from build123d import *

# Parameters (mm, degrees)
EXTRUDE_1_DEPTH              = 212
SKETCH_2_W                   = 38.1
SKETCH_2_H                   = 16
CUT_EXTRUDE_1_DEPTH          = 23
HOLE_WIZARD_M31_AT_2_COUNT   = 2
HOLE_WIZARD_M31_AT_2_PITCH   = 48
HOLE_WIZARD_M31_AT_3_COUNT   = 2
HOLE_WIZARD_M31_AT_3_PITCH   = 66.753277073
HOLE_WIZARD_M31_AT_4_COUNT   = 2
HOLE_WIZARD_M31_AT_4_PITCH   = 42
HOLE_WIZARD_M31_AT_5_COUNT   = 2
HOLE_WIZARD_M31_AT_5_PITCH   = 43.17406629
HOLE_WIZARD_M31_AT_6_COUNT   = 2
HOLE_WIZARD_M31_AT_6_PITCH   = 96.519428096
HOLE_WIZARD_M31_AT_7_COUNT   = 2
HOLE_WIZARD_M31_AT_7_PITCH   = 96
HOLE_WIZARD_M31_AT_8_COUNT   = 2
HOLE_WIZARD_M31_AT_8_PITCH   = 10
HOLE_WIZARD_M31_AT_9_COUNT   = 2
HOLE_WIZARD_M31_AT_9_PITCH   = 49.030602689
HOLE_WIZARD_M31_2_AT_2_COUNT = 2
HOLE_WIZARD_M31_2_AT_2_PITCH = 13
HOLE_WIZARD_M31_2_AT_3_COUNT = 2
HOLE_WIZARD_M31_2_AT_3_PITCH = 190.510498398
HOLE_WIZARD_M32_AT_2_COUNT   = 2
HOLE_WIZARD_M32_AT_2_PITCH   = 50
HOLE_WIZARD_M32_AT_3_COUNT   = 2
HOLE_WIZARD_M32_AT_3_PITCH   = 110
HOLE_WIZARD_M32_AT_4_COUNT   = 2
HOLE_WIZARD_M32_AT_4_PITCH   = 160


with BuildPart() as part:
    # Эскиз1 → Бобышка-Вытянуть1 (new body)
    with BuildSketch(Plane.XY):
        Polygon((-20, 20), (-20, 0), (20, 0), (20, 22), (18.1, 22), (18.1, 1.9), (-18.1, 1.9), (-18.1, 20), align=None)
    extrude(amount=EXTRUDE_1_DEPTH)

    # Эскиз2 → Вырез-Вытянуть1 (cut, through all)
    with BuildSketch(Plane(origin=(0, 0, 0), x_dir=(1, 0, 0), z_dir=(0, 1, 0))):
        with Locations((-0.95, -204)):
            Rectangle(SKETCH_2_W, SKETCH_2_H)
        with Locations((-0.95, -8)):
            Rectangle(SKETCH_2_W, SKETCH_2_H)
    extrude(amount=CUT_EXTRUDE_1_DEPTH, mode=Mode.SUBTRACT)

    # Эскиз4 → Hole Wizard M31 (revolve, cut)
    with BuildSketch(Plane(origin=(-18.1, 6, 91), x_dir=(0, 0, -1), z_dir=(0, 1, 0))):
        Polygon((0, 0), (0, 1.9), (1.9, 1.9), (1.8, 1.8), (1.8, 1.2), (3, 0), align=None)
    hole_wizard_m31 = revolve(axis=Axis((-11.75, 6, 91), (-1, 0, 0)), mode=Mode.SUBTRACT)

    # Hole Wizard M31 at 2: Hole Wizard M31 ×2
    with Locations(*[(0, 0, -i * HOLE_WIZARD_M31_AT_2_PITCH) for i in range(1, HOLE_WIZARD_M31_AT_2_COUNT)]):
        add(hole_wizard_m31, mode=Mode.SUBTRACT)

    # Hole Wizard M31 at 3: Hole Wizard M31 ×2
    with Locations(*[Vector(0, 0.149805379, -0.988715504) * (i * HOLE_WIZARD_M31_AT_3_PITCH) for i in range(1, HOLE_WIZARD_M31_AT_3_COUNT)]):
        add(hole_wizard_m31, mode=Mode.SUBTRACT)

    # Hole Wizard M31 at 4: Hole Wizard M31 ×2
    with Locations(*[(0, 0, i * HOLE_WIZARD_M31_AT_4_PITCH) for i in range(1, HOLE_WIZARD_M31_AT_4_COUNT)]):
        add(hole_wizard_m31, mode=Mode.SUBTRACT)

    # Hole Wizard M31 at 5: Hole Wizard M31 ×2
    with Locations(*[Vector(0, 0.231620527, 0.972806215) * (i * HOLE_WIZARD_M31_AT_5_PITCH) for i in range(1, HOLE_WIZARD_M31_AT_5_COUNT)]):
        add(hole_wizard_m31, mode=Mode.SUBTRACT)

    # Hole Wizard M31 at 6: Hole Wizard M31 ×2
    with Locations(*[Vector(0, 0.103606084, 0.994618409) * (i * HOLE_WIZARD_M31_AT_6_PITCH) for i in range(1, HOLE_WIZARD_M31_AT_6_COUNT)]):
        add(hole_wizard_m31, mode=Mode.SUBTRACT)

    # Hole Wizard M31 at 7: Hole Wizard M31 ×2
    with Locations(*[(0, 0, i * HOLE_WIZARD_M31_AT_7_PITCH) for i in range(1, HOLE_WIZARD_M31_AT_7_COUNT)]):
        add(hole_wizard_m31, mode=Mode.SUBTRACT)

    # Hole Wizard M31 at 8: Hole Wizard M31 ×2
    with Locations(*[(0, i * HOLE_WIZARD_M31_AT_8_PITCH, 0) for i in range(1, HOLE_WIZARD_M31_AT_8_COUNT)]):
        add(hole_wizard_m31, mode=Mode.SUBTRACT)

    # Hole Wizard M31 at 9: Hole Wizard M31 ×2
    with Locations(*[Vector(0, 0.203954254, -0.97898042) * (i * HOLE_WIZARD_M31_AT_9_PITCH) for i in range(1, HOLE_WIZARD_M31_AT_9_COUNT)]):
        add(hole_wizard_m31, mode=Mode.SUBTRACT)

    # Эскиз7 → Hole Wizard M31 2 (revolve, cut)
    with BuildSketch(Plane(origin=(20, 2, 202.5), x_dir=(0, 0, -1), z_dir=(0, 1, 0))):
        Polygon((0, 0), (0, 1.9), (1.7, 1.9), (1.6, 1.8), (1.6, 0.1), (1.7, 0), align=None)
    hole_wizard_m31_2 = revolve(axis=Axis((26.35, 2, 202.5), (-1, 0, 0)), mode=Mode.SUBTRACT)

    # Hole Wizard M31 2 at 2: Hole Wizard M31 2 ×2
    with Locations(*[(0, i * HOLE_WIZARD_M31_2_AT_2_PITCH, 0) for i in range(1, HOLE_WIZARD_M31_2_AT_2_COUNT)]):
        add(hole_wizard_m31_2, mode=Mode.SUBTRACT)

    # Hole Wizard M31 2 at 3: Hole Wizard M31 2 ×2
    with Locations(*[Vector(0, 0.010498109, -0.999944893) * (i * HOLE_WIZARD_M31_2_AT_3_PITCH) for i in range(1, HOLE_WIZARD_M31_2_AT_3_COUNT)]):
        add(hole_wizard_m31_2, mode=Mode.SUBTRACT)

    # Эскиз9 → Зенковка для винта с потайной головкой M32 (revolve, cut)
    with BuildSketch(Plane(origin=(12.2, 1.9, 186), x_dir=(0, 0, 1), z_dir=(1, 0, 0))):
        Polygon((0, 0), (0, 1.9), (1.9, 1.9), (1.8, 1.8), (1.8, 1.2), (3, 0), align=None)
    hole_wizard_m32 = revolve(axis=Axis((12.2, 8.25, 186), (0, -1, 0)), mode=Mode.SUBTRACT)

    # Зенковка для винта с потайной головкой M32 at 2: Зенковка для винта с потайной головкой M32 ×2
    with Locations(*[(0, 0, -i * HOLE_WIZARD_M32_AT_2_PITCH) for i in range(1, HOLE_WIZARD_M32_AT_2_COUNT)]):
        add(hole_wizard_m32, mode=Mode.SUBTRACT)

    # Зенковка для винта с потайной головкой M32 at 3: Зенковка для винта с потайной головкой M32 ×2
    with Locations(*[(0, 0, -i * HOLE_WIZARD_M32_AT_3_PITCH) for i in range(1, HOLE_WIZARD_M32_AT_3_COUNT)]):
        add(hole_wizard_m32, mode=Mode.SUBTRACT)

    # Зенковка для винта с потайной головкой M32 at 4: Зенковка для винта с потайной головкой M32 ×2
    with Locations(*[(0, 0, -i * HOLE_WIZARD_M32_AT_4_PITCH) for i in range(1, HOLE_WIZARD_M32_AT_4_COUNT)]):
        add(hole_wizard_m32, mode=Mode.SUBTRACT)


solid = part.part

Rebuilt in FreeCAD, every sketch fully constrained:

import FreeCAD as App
import Part
import Sketcher
Q = App.Units.Quantity


def add_polygon(sketch, points):
    """Adds a closed chain of lines whose ends are joined by coincident constraints."""
    first, n = sketch.GeometryCount, len(points)
    for a, b in zip(points, points[1:] + points[:1]):
        sketch.addGeometry(Part.LineSegment(App.Vector(*a, 0), App.Vector(*b, 0)), False)
    for i in range(n):
        sketch.addConstraint(Sketcher.Constraint("Coincident", first + i, 2, first + (i + 1) % n, 1))

doc = App.newDocument("Part")
body = doc.addObject("PartDesign::Body", "Body")

sketch1 = doc.addObject("Sketcher::SketchObject", "Sketch")
body.addObject(sketch1)
sketch1.AttachmentSupport = (doc.XY_Plane, [""])
sketch1.MapMode = "FlatFace"
add_polygon(sketch1, [(-20, 20), (-20, 0), (20, 0), (20, 22), (18.1, 22), (18.1, 1.9), (-18.1, 1.9), (-18.1, 20)])
sketch1.addConstraint([
    Sketcher.Constraint("Vertical", 0),
    Sketcher.Constraint("Horizontal", 1),
    Sketcher.Constraint("Vertical", 2),
    Sketcher.Constraint("Horizontal", 3),
    Sketcher.Constraint("Vertical", 4),
    Sketcher.Constraint("Horizontal", 5),
    Sketcher.Constraint("Vertical", 6),
    Sketcher.Constraint("Horizontal", 7),
    Sketcher.Constraint("Symmetric", 0, 2, 1, 2, -1, 1),
    Sketcher.Constraint("Equal", 3, 7),
    Sketcher.Constraint("DistanceX", 1, 1, 1, 2, Q("40 mm")),
    Sketcher.Constraint("DistanceY", 0, 2, 0, 1, Q("20 mm")),
    Sketcher.Constraint("DistanceY", 2, 1, 2, 2, Q("22 mm")),
    Sketcher.Constraint("DistanceX", 3, 2, 3, 1, Q("1.9 mm")),
    Sketcher.Constraint("DistanceY", 4, 2, 4, 1, Q("20.1 mm")),
])
pad1 = doc.addObject("PartDesign::Pad", "Pad")
body.addObject(pad1)
pad1.Profile = sketch1
pad1.Length = 212

sketch2 = doc.addObject("Sketcher::SketchObject", "Sketch001")
body.addObject(sketch2)
sketch2.AttachmentSupport = (doc.XZ_Plane, [""])
sketch2.MapMode = "FlatFace"
add_polygon(sketch2, [(-20, 196), (-20, 212), (18, 212), (18, 196)])
add_polygon(sketch2, [(-20, 0), (-20, 16), (18, 16), (18, 0)])
sketch2.addConstraint([
    Sketcher.Constraint("Vertical", 0),
    Sketcher.Constraint("Horizontal", 1),
    Sketcher.Constraint("Vertical", 2),
    Sketcher.Constraint("Horizontal", 3),
    Sketcher.Constraint("Vertical", 4),
    Sketcher.Constraint("Horizontal", 5),
    Sketcher.Constraint("Vertical", 6),
    Sketcher.Constraint("Horizontal", 7),
    Sketcher.Constraint("PointOnObject", 6, 2, -1),
    Sketcher.Constraint("Vertical", 3, 2, 4, 2),
    Sketcher.Constraint("Vertical", 2, 2, 5, 2),
    Sketcher.Constraint("Equal", 2, 4),
    Sketcher.Constraint("DistanceY", 0, 1, 0, 2, Q("16 mm")),
    Sketcher.Constraint("DistanceX", 1, 1, 1, 2, Q("38.1 mm")),
    Sketcher.Constraint("DistanceX", 0, 2, -1, 1, Q("20 mm")),
    Sketcher.Constraint("DistanceY", -1, 1, 0, 2, Q("212 mm")),
])
pocket1 = doc.addObject("PartDesign::Pocket", "Pocket")
body.addObject(pocket1)
pocket1.Profile = sketch2
pocket1.Type = "ThroughAll"

sketch3 = doc.addObject("Sketcher::SketchObject", "Sketch002")
body.addObject(sketch3)
sketch3.AttachmentSupport = (doc.XZ_Plane, [""])
sketch3.MapMode = "FlatFace"
sketch3.AttachmentOffset = App.Placement(App.Vector(0, 0, -6), App.Rotation())
add_polygon(sketch3, [(-20, 91), (-18.1, 91), (-18.1, 88), (-19.3, 89.2), (-19.9, 89.2), (-20, 89.1)])
sketch3.addGeometry(Part.LineSegment(App.Vector(-18.1, 91, 0), App.Vector(-20, 91, 0)), True)
sketch3.addConstraint([
    Sketcher.Constraint("Horizontal", 0),
    Sketcher.Constraint("Vertical", 1),
    Sketcher.Constraint("Horizontal", 3),
    Sketcher.Constraint("Vertical", 5),
    Sketcher.Constraint("Horizontal", 6),
    Sketcher.Constraint("Coincident", 6, 1, 0, 2),
    Sketcher.Constraint("Perpendicular", 2, 4),
    Sketcher.Constraint("Vertical", 4, 2, 6, 2),
    Sketcher.Constraint("Equal", 6, 5),
    Sketcher.Constraint("DistanceY", 1, 2, 1, 1, Q("3 mm")),
    Sketcher.Constraint("Angle", 2, Q("135 deg")),
    Sketcher.Constraint("DistanceX", 0, 1, 0, 2, Q("1.9 mm")),
    Sketcher.Constraint("DistanceX", 3, 2, 3, 1, Q("0.6 mm")),
    Sketcher.Constraint("DistanceY", -1, 1, 0, 2, Q("91 mm")),
    Sketcher.Constraint("DistanceX", 4, 2, -1, 1, Q("20 mm")),
])
groove = doc.addObject("PartDesign::Groove", "Groove")
body.addObject(groove)
groove.Profile = sketch3
groove.ReferenceAxis = (sketch3, ["Axis0"])
groove.Angle = 360
doc.recompute()

linearpattern = doc.addObject("PartDesign::LinearPattern", "LinearPattern")
body.addObject(linearpattern)
linearpattern.Originals = [groove]
linearpattern.Direction = (doc.Z_Axis, [""])
linearpattern.Mode = "offset"
linearpattern.Offset = 48
linearpattern.Occurrences = 2
linearpattern.Reversed = True
body.Tip = linearpattern
doc.recompute()

datumline = doc.addObject("PartDesign::Line", "DatumLine")
body.addObject(datumline)
datumline.Placement = App.Placement(App.Vector(0, 0, 0), App.Rotation(App.Vector(0, 0, 1), App.Vector(0, 0.149805379, -0.988715504)))
linearpattern2 = doc.addObject("PartDesign::LinearPattern", "LinearPattern001")
body.addObject(linearpattern2)
linearpattern2.Originals = [groove]
linearpattern2.Direction = (datumline, [""])
linearpattern2.Mode = "offset"
linearpattern2.Offset = 66.753277
linearpattern2.Occurrences = 2
body.Tip = linearpattern2
doc.recompute()

linearpattern3 = doc.addObject("PartDesign::LinearPattern", "LinearPattern002")
body.addObject(linearpattern3)
linearpattern3.Originals = [groove]
linearpattern3.Direction = (doc.Z_Axis, [""])
linearpattern3.Mode = "offset"
linearpattern3.Offset = 42
linearpattern3.Occurrences = 2
body.Tip = linearpattern3
doc.recompute()

datumline2 = doc.addObject("PartDesign::Line", "DatumLine001")
body.addObject(datumline2)
datumline2.Placement = App.Placement(App.Vector(0, 0, 0), App.Rotation(App.Vector(0, 0, 1), App.Vector(0, 0.231620527, 0.972806215)))
linearpattern4 = doc.addObject("PartDesign::LinearPattern", "LinearPattern003")
body.addObject(linearpattern4)
linearpattern4.Originals = [groove]
linearpattern4.Direction = (datumline2, [""])
linearpattern4.Mode = "offset"
linearpattern4.Offset = 43.174066
linearpattern4.Occurrences = 2
body.Tip = linearpattern4
doc.recompute()

datumline3 = doc.addObject("PartDesign::Line", "DatumLine002")
body.addObject(datumline3)
datumline3.Placement = App.Placement(App.Vector(0, 0, 0), App.Rotation(App.Vector(0, 0, 1), App.Vector(0, 0.103606084, 0.994618409)))
linearpattern5 = doc.addObject("PartDesign::LinearPattern", "LinearPattern004")
body.addObject(linearpattern5)
linearpattern5.Originals = [groove]
linearpattern5.Direction = (datumline3, [""])
linearpattern5.Mode = "offset"
linearpattern5.Offset = 96.519428
linearpattern5.Occurrences = 2
body.Tip = linearpattern5
doc.recompute()

linearpattern6 = doc.addObject("PartDesign::LinearPattern", "LinearPattern005")
body.addObject(linearpattern6)
linearpattern6.Originals = [groove]
linearpattern6.Direction = (doc.Z_Axis, [""])
linearpattern6.Mode = "offset"
linearpattern6.Offset = 96
linearpattern6.Occurrences = 2
body.Tip = linearpattern6
doc.recompute()

linearpattern7 = doc.addObject("PartDesign::LinearPattern", "LinearPattern006")
body.addObject(linearpattern7)
linearpattern7.Originals = [groove]
linearpattern7.Direction = (doc.Y_Axis, [""])
linearpattern7.Mode = "offset"
linearpattern7.Offset = 10
linearpattern7.Occurrences = 2
body.Tip = linearpattern7
doc.recompute()

datumline4 = doc.addObject("PartDesign::Line", "DatumLine003")
body.addObject(datumline4)
datumline4.Placement = App.Placement(App.Vector(0, 0, 0), App.Rotation(App.Vector(0, 0, 1), App.Vector(0, 0.203954254, -0.97898042)))
linearpattern8 = doc.addObject("PartDesign::LinearPattern", "LinearPattern007")
body.addObject(linearpattern8)
linearpattern8.Originals = [groove]
linearpattern8.Direction = (datumline4, [""])
linearpattern8.Mode = "offset"
linearpattern8.Offset = 49.030603
linearpattern8.Occurrences = 2
body.Tip = linearpattern8

sketch4 = doc.addObject("Sketcher::SketchObject", "Sketch003")
body.addObject(sketch4)
sketch4.AttachmentSupport = (doc.XZ_Plane, [""])
sketch4.MapMode = "FlatFace"
sketch4.AttachmentOffset = App.Placement(App.Vector(0, 0, -2), App.Rotation())
add_polygon(sketch4, [(18.1, 202.5), (20, 202.5), (20, 200.8), (19.9, 200.9), (18.2, 200.9), (18.1, 200.8)])
sketch4.addGeometry(Part.LineSegment(App.Vector(20, 202.5, 0), App.Vector(18.1, 202.5, 0)), True)
sketch4.addConstraint([
    Sketcher.Constraint("Horizontal", 0),
    Sketcher.Constraint("Vertical", 1),
    Sketcher.Constraint("Horizontal", 3),
    Sketcher.Constraint("Vertical", 5),
    Sketcher.Constraint("Horizontal", 6),
    Sketcher.Constraint("Coincident", 6, 1, 0, 2),
    Sketcher.Constraint("Perpendicular", 2, 4),
    Sketcher.Constraint("Horizontal", 1, 2, 4, 2),
    Sketcher.Constraint("Vertical", 4, 2, 6, 2),
    Sketcher.Constraint("Equal", 3, 1),
    Sketcher.Constraint("Equal", 2, 4),
    Sketcher.Constraint("DistanceX", 0, 1, 0, 2, Q("1.9 mm")),
    Sketcher.Constraint("DistanceX", 3, 2, 3, 1, Q("1.7 mm")),
    Sketcher.Constraint("DistanceX", -1, 1, 0, 2, Q("20 mm")),
    Sketcher.Constraint("DistanceY", -1, 1, 0, 2, Q("202.5 mm")),
])
groove2 = doc.addObject("PartDesign::Groove", "Groove001")
body.addObject(groove2)
groove2.Profile = sketch4
groove2.ReferenceAxis = (sketch4, ["Axis0"])
groove2.Angle = 360
doc.recompute()

linearpattern9 = doc.addObject("PartDesign::LinearPattern", "LinearPattern008")
body.addObject(linearpattern9)
linearpattern9.Originals = [groove2]
linearpattern9.Direction = (doc.Y_Axis, [""])
linearpattern9.Mode = "offset"
linearpattern9.Offset = 13
linearpattern9.Occurrences = 2
body.Tip = linearpattern9
doc.recompute()

datumline5 = doc.addObject("PartDesign::Line", "DatumLine004")
body.addObject(datumline5)
datumline5.Placement = App.Placement(App.Vector(0, 0, 0), App.Rotation(App.Vector(0, 0, 1), App.Vector(0, 0.010498109, -0.999944893)))
linearpattern10 = doc.addObject("PartDesign::LinearPattern", "LinearPattern009")
body.addObject(linearpattern10)
linearpattern10.Originals = [groove2]
linearpattern10.Direction = (datumline5, [""])
linearpattern10.Mode = "offset"
linearpattern10.Offset = 190.510498
linearpattern10.Occurrences = 2
body.Tip = linearpattern10

sketch5 = doc.addObject("Sketcher::SketchObject", "Sketch004")
body.addObject(sketch5)
sketch5.AttachmentSupport = (doc.YZ_Plane, [""])
sketch5.MapMode = "FlatFace"
sketch5.AttachmentOffset = App.Placement(App.Vector(0, 0, 12.2), App.Rotation())
add_polygon(sketch5, [(0, 186), (1.9, 186), (1.9, 189), (0.7, 187.8), (0.1, 187.8), (0, 187.9)])
sketch5.addGeometry(Part.LineSegment(App.Vector(1.9, 186, 0), App.Vector(0, 186, 0)), True)
sketch5.addConstraint([
    Sketcher.Constraint("Horizontal", 0),
    Sketcher.Constraint("Vertical", 1),
    Sketcher.Constraint("Horizontal", 3),
    Sketcher.Constraint("Vertical", 5),
    Sketcher.Constraint("Horizontal", 6),
    Sketcher.Constraint("Coincident", 6, 1, 0, 2),
    Sketcher.Constraint("PointOnObject", 4, 2, -2),
    Sketcher.Constraint("PointOnObject", 6, 2, -2),
    Sketcher.Constraint("Perpendicular", 2, 4),
    Sketcher.Constraint("Equal", 6, 5),
    Sketcher.Constraint("DistanceY", 1, 1, 1, 2, Q("3 mm")),
    Sketcher.Constraint("Angle", 2, Q("-135 deg")),
    Sketcher.Constraint("DistanceX", 0, 1, 0, 2, Q("1.9 mm")),
    Sketcher.Constraint("DistanceX", 3, 2, 3, 1, Q("0.6 mm")),
    Sketcher.Constraint("DistanceY", -1, 1, 0, 2, Q("186 mm")),
])
groove3 = doc.addObject("PartDesign::Groove", "Groove002")
body.addObject(groove3)
groove3.Profile = sketch5
groove3.ReferenceAxis = (sketch5, ["Axis0"])
groove3.Angle = 360
doc.recompute()

linearpattern11 = doc.addObject("PartDesign::LinearPattern", "LinearPattern010")
body.addObject(linearpattern11)
linearpattern11.Originals = [groove3]
linearpattern11.Direction = (doc.Z_Axis, [""])
linearpattern11.Mode = "offset"
linearpattern11.Offset = 50
linearpattern11.Occurrences = 2
linearpattern11.Reversed = True
body.Tip = linearpattern11
doc.recompute()

linearpattern12 = doc.addObject("PartDesign::LinearPattern", "LinearPattern011")
body.addObject(linearpattern12)
linearpattern12.Originals = [groove3]
linearpattern12.Direction = (doc.Z_Axis, [""])
linearpattern12.Mode = "offset"
linearpattern12.Offset = 110
linearpattern12.Occurrences = 2
linearpattern12.Reversed = True
body.Tip = linearpattern12
doc.recompute()

linearpattern13 = doc.addObject("PartDesign::LinearPattern", "LinearPattern012")
body.addObject(linearpattern13)
linearpattern13.Originals = [groove3]
linearpattern13.Direction = (doc.Z_Axis, [""])
linearpattern13.Mode = "offset"
linearpattern13.Offset = 160
linearpattern13.Occurrences = 2
linearpattern13.Reversed = True
body.Tip = linearpattern13

doc.recompute()
